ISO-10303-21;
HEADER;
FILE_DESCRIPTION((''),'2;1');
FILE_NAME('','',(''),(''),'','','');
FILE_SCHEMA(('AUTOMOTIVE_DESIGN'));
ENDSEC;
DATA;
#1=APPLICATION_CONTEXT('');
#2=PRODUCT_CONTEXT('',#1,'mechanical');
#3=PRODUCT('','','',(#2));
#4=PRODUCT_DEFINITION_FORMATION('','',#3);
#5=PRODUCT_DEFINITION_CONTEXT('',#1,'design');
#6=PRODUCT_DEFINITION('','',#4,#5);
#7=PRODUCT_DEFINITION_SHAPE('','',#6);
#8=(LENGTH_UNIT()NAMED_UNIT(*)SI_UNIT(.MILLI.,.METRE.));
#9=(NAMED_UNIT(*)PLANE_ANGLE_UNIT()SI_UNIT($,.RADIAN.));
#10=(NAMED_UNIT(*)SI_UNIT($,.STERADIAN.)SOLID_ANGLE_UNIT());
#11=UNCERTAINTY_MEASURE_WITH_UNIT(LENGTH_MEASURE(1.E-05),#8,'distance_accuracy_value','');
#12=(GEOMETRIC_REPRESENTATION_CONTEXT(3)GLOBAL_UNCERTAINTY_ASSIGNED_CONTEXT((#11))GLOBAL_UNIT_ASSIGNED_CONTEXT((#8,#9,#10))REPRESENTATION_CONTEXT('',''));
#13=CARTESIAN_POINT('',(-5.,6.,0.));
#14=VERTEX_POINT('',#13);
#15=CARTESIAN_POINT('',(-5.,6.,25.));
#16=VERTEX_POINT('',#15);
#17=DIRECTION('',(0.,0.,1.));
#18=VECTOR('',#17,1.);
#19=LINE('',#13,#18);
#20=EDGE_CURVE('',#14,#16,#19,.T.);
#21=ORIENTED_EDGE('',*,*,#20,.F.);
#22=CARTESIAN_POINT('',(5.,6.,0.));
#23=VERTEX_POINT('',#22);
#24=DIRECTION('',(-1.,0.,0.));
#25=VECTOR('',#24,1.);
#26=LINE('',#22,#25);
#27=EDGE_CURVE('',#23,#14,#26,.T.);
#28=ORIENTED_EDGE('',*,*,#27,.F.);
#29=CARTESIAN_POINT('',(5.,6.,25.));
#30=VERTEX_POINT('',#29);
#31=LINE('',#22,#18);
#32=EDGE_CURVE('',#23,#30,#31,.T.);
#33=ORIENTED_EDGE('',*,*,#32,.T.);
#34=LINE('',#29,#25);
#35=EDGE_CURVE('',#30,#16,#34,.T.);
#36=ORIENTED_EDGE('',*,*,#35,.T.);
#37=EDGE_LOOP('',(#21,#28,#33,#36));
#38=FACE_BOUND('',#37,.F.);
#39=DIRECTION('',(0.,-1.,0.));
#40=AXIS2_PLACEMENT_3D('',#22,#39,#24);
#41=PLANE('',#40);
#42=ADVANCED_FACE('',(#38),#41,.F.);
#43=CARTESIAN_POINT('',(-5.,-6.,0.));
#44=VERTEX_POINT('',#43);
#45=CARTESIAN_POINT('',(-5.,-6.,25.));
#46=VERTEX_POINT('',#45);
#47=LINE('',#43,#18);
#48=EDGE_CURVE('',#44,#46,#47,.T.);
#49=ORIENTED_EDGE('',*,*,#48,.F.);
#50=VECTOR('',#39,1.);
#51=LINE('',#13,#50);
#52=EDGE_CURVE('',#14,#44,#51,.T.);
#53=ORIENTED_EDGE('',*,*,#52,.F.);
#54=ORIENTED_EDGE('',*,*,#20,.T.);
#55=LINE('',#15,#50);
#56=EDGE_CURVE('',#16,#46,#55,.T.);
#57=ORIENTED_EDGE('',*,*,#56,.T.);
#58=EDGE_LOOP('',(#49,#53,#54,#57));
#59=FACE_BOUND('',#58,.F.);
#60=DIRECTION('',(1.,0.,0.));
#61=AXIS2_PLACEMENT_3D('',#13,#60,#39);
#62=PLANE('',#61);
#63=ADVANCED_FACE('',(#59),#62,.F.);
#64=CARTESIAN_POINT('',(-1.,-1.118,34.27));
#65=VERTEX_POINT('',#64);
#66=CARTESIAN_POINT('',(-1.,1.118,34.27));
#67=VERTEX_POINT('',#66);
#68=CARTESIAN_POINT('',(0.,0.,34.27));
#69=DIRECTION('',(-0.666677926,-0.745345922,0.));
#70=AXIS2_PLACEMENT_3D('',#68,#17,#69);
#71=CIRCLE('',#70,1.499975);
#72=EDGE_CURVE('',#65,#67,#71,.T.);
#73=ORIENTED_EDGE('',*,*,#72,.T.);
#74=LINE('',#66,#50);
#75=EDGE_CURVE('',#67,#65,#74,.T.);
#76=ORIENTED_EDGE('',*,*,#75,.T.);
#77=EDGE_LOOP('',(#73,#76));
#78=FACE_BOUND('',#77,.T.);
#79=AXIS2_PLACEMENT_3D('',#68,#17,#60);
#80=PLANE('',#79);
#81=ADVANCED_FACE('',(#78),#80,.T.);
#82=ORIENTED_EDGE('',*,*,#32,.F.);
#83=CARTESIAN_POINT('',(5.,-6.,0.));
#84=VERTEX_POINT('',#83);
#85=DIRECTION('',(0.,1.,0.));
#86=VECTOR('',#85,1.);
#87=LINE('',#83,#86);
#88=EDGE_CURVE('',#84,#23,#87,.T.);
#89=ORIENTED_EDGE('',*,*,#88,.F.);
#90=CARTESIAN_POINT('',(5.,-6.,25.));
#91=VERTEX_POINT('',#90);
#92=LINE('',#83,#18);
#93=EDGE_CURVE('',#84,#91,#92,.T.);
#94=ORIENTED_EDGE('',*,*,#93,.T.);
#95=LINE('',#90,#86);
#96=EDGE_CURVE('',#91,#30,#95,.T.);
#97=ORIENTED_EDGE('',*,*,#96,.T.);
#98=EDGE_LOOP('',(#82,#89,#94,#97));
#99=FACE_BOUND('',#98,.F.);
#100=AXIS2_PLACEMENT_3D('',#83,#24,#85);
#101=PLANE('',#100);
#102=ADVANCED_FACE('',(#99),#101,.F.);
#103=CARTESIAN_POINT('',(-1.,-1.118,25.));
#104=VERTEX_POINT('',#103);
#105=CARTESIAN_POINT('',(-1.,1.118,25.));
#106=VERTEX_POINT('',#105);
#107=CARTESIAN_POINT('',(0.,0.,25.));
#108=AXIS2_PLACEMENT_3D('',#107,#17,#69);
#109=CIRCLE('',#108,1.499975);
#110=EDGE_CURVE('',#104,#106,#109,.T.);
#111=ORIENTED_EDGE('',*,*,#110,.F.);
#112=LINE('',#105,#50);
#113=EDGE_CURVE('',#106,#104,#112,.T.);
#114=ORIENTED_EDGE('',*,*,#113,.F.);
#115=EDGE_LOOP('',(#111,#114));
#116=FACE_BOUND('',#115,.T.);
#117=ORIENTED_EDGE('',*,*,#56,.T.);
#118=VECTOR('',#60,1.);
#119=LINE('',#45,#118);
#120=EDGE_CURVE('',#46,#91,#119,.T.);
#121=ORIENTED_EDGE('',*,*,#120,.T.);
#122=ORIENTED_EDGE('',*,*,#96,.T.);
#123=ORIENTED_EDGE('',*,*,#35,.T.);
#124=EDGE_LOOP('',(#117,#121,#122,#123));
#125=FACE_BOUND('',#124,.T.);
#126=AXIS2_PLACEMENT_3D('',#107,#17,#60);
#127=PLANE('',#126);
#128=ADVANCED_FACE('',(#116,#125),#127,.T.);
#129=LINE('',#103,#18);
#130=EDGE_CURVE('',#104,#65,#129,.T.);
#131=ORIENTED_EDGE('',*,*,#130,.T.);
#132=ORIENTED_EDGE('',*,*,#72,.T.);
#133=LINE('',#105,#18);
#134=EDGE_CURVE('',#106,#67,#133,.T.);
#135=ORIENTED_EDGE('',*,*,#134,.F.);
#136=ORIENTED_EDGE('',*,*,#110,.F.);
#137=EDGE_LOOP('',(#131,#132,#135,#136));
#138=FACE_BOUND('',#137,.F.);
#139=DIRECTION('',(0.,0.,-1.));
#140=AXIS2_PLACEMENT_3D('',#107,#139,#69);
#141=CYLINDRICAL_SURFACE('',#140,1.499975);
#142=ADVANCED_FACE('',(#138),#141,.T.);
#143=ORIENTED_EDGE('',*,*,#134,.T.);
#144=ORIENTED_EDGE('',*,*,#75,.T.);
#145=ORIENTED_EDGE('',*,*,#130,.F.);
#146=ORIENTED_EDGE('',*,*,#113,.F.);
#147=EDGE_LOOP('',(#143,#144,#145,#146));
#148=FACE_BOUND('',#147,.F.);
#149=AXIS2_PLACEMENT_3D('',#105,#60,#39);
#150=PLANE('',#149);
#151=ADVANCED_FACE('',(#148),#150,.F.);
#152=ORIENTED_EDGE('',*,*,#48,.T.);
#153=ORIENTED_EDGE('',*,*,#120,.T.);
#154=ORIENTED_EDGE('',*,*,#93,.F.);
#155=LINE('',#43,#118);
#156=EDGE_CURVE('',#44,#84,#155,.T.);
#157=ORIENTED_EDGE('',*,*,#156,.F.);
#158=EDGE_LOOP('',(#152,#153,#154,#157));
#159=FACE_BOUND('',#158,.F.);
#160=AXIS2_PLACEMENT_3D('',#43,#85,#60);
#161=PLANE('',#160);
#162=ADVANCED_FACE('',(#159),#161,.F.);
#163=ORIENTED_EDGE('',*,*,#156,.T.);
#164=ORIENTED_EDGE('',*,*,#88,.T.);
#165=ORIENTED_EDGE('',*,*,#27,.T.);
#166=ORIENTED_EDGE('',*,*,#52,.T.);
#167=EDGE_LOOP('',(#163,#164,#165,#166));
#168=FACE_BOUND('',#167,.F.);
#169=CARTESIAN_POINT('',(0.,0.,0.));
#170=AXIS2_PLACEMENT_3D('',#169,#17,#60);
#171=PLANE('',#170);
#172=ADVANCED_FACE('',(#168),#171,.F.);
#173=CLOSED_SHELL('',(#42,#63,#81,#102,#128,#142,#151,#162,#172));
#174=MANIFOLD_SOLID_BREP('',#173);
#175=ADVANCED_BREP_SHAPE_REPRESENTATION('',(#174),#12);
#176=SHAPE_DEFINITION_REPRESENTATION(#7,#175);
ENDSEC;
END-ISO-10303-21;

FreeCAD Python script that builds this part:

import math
import FreeCAD as App
import Part
import Sketcher
from FreeCAD import Vector
Q = App.Units.Quantity


def add_polygon(sketch, points):
    """Adds a closed chain of lines whose ends are joined by coincident constraints."""
    first, n = sketch.GeometryCount, len(points)
    for a, b in zip(points, points[1:] + points[:1]):
        sketch.addGeometry(Part.LineSegment(App.Vector(*a, 0), App.Vector(*b, 0)), False)
    for i in range(n):
        sketch.addConstraint(Sketcher.Constraint("Coincident", first + i, 2, first + (i + 1) % n, 1))

doc = App.newDocument("Part")
params = doc.addObject("Spreadsheet::Sheet", "Params")
for row, (alias, value) in enumerate([
    ("sketch1_width", "10 mm"),
    ("sketch1_height", "12 mm"),
    ("pad1_length", "25 mm"),
    ("sketch2_radius", "1.5 mm"),
    ("pad2_length", "9.27 mm"),
], start=1):
    params.set(f"A{row}", alias)
    params.set(f"B{row}", "=" + value)
    params.setAlias(f"B{row}", alias)

body = doc.addObject("PartDesign::Body", "Body")

# Sketch on XY plane
sketch1 = doc.addObject("Sketcher::SketchObject", "Sketch")
body.addObject(sketch1)
sketch1.AttachmentSupport = (doc.XY_Plane, [""])
sketch1.MapMode = "FlatFace"
add_polygon(sketch1, [(-5, 6), (-5, -6), (5, -6), (5, 6)])  # lines 0-3
sketch1.addConstraint([
    Sketcher.Constraint("Vertical", 0),
    Sketcher.Constraint("Horizontal", 1),
    Sketcher.Constraint("Vertical", 2),
    Sketcher.Constraint("Horizontal", 3),
    Sketcher.Constraint("Symmetric", 0, 2, 2, 2, -1, 1),
    Sketcher.Constraint("DistanceX", 1, 1, 1, 2, Q("10 mm")),
    Sketcher.Constraint("DistanceY", 0, 2, 0, 1, Q("12 mm")),
])
sketch1.setExpression("Constraints[9]", "Params.sketch1_width")
sketch1.setExpression("Constraints[10]", "Params.sketch1_height")
pad1 = doc.addObject("PartDesign::Pad", "Pad")
body.addObject(pad1)
pad1.Profile = sketch1
pad1.setExpression("Length", "Params.pad1_length")

# Sketch on XY plane
sketch2 = doc.addObject("Sketcher::SketchObject", "Sketch001")
body.addObject(sketch2)
sketch2.AttachmentSupport = (doc.XY_Plane, [""])
sketch2.MapMode = "FlatFace"
sketch2.AttachmentOffset = App.Placement(Vector(0, 0, 25), App.Rotation())
sketch2.addGeometry([
    Part.LineSegment(Vector(-1, 1.118, 0), Vector(-1, -1.118, 0)),
    Part.ArcOfCircle(Part.Circle(Vector(0, 0, 0), Vector(0, 0, 1), 1.499975), math.radians(-131.81118), math.radians(131.81118)),
], False)
sketch2.addConstraint([
    Sketcher.Constraint("Coincident", 0, 1, 1, 2),
    Sketcher.Constraint("Coincident", 1, 1, 0, 2),
    Sketcher.Constraint("Vertical", 0),
    Sketcher.Constraint("Coincident", 1, 3, -1, 1),
    Sketcher.Constraint("Radius", 1, Q("1.5 mm")),
    Sketcher.Constraint("DistanceX", 0, 1, -1, 1, Q("1 mm")),
])
sketch2.setExpression("Constraints[4]", "Params.sketch2_radius")
pad2 = doc.addObject("PartDesign::Pad", "Pad001")
body.addObject(pad2)
pad2.Profile = sketch2
pad2.setExpression("Length", "Params.pad2_length")

doc.recompute()
